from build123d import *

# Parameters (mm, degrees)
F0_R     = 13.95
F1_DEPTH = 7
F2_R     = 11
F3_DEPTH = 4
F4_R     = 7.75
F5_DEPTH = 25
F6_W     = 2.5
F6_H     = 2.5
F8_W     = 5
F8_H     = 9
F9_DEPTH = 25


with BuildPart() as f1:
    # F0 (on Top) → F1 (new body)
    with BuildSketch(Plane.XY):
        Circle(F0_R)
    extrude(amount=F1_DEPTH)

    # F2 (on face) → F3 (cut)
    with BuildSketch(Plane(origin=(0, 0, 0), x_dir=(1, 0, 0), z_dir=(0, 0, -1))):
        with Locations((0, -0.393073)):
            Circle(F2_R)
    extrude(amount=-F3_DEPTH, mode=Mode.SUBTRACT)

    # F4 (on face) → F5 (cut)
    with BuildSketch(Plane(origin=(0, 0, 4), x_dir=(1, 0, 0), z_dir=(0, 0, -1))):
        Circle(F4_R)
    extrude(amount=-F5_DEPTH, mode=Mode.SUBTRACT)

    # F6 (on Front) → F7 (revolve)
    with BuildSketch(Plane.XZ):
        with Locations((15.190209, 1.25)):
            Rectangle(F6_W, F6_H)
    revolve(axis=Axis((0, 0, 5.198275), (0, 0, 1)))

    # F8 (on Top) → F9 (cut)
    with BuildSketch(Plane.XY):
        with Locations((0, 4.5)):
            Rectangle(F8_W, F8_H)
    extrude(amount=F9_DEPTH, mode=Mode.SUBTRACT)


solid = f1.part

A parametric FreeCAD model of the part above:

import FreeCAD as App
import Part
import Sketcher

doc = App.newDocument("Part")
body = doc.addObject("PartDesign::Body", "Body")

sketch1 = doc.addObject("Sketcher::SketchObject", "Sketch")
body.addObject(sketch1)
sketch1.AttachmentSupport = (doc.XY_Plane, [""])
sketch1.MapMode = "FlatFace"
sketch1.addGeometry(Part.Circle(App.Vector(0, 0, 0), App.Vector(0, 0, 1), 13.95), False)
sketch1.addConstraint([
    Sketcher.Constraint("Coincident", 0, 3, -1, 1),
    Sketcher.Constraint("Diameter", 0, 27.9),
])
pad1 = doc.addObject("PartDesign::Pad", "Pad")
body.addObject(pad1)
pad1.Profile = sketch1
pad1.Length = 7

sketch2 = doc.addObject("Sketcher::SketchObject", "Sketch001")
body.addObject(sketch2)
sketch2.AttachmentSupport = (doc.XY_Plane, [""])
sketch2.MapMode = "FlatFace"
sketch2.addGeometry(Part.Circle(App.Vector(0, 0.393073, 0), App.Vector(0, 0, 1), 11), False)
sketch2.addConstraint([
    Sketcher.Constraint("PointOnObject", 0, 3, -2),
    Sketcher.Constraint("Diameter", 0, 22.0),
    Sketcher.Constraint("DistanceY", -1, 1, 0, 3, 0.393073),
])
pocket1 = doc.addObject("PartDesign::Pocket", "Pocket")
body.addObject(pocket1)
pocket1.Profile = sketch2
pocket1.Length = 4
pocket1.Reversed = True

sketch3 = doc.addObject("Sketcher::SketchObject", "Sketch002")
body.addObject(sketch3)
sketch3.AttachmentSupport = (doc.XY_Plane, [""])
sketch3.MapMode = "FlatFace"
sketch3.AttachmentOffset = App.Placement(App.Vector(0, 0, 4), App.Rotation())
sketch3.addGeometry(Part.Circle(App.Vector(0, 0, 0), App.Vector(0, 0, 1), 7.75), False)
sketch3.addConstraint([
    Sketcher.Constraint("Coincident", 0, 3, -1, 1),
    Sketcher.Constraint("Diameter", 0, 15.5),
])
pocket2 = doc.addObject("PartDesign::Pocket", "Pocket001")
body.addObject(pocket2)
pocket2.Profile = sketch3
pocket2.Length = 25
pocket2.Reversed = True

sketch4 = doc.addObject("Sketcher::SketchObject", "Sketch003")
body.addObject(sketch4)
sketch4.AttachmentSupport = (doc.XZ_Plane, [""])
sketch4.MapMode = "FlatFace"
sketch4.addGeometry([
    Part.LineSegment(App.Vector(13.940209, 2.5, 0), App.Vector(13.940209, 0, 0)),
    Part.LineSegment(App.Vector(13.940209, 0, 0), App.Vector(16.440209, 0, 0)),
    Part.LineSegment(App.Vector(16.440209, 0, 0), App.Vector(16.440209, 2.5, 0)),
    Part.LineSegment(App.Vector(16.440209, 2.5, 0), App.Vector(13.940209, 2.5, 0)),
], False)
sketch4.addConstraint([
    Sketcher.Constraint("Coincident", 0, 2, 1, 1),
    Sketcher.Constraint("Coincident", 1, 2, 2, 1),
    Sketcher.Constraint("Coincident", 2, 2, 3, 1),
    Sketcher.Constraint("Coincident", 3, 2, 0, 1),
    Sketcher.Constraint("Vertical", 0),
    Sketcher.Constraint("Horizontal", 1),
    Sketcher.Constraint("Vertical", 2),
    Sketcher.Constraint("Horizontal", 3),
    Sketcher.Constraint("PointOnObject", 0, 2, -1),
    Sketcher.Constraint("Equal", 3, 0),
    Sketcher.Constraint("DistanceX", 1, 1, 1, 2, 2.5),
    Sketcher.Constraint("DistanceX", -1, 1, 0, 2, 13.940209),
])
revolution = doc.addObject("PartDesign::Revolution", "Revolution")
body.addObject(revolution)
revolution.Profile = sketch4
revolution.ReferenceAxis = (sketch4, ["V_Axis"])
revolution.Angle = 360

sketch5 = doc.addObject("Sketcher::SketchObject", "Sketch004")
body.addObject(sketch5)
sketch5.AttachmentSupport = (doc.XY_Plane, [""])
sketch5.MapMode = "FlatFace"
sketch5.addGeometry([
    Part.LineSegment(App.Vector(-2.5, 9, 0), App.Vector(-2.5, 0, 0)),
    Part.LineSegment(App.Vector(-2.5, 0, 0), App.Vector(2.5, 0, 0)),
    Part.LineSegment(App.Vector(2.5, 0, 0), App.Vector(2.5, 9, 0)),
    Part.LineSegment(App.Vector(2.5, 9, 0), App.Vector(-2.5, 9, 0)),
], False)
sketch5.addConstraint([
    Sketcher.Constraint("Coincident", 0, 2, 1, 1),
    Sketcher.Constraint("Coincident", 1, 2, 2, 1),
    Sketcher.Constraint("Coincident", 2, 2, 3, 1),
    Sketcher.Constraint("Coincident", 3, 2, 0, 1),
    Sketcher.Constraint("Vertical", 0),
    Sketcher.Constraint("Horizontal", 1),
    Sketcher.Constraint("Vertical", 2),
    Sketcher.Constraint("Horizontal", 3),
    Sketcher.Constraint("Symmetric", 0, 2, 1, 2, -1, 1),
    Sketcher.Constraint("DistanceX", 1, 1, 1, 2, 5.0),
    Sketcher.Constraint("DistanceY", 0, 2, 0, 1, 9.0),
])
pocket3 = doc.addObject("PartDesign::Pocket", "Pocket002")
body.addObject(pocket3)
pocket3.Profile = sketch5
pocket3.Length = 25
pocket3.Reversed = True

doc.recompute()
